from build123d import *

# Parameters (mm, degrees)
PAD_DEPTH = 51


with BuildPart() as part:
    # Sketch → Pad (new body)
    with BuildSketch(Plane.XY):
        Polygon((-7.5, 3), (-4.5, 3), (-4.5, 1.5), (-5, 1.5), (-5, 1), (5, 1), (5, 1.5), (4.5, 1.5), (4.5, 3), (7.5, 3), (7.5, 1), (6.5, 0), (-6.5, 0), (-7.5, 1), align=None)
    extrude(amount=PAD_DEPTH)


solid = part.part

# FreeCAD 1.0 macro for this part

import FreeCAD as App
import Part
import Sketcher


def add_polygon(sketch, points):
    """Adds a closed chain of lines whose ends are joined by coincident constraints."""
    first, n = sketch.GeometryCount, len(points)
    for a, b in zip(points, points[1:] + points[:1]):
        sketch.addGeometry(Part.LineSegment(App.Vector(*a, 0), App.Vector(*b, 0)), False)
    for i in range(n):
        sketch.addConstraint(Sketcher.Constraint("Coincident", first + i, 2, first + (i + 1) % n, 1))

doc = App.newDocument("Part")
body = doc.addObject("PartDesign::Body", "Body")

sketch1 = body.newObject("Sketcher::SketchObject", "Sketch")
sketch1.AttachmentSupport = (doc.getObject("XY_Plane"), [""])
sketch1.MapMode = "FlatFace"
add_polygon(sketch1, [(-4.5, 3), (-7.5, 3), (-7.5, 1), (-6.5, 0), (6.5, 0), (7.5, 1), (7.5, 3), (4.5, 3), (4.5, 1.5), (5, 1.5), (5, 1), (-5, 1), (-5, 1.5), (-4.5, 1.5)])
sketch1.addConstraint([
    Sketcher.Constraint("Horizontal", 0),
    Sketcher.Constraint("Vertical", 1),
    Sketcher.Constraint("Horizontal", 3),
    Sketcher.Constraint("Vertical", 5),
    Sketcher.Constraint("Horizontal", 6),
    Sketcher.Constraint("Vertical", 7),
    Sketcher.Constraint("Horizontal", 8),
    Sketcher.Constraint("Vertical", 9),
    Sketcher.Constraint("Horizontal", 10),
    Sketcher.Constraint("Vertical", 11),
    Sketcher.Constraint("Horizontal", 12),
    Sketcher.Constraint("Vertical", 13),
    Sketcher.Constraint("Symmetric", 2, 2, 3, 2, -1, 1),
    Sketcher.Constraint("Symmetric", 1, 2, 4, 2, -2),
    Sketcher.Constraint("Symmetric", 8, 2, 11, 2, -2),
    Sketcher.Constraint("Symmetric", 6, 2, 13, 2, -2),
    Sketcher.Constraint("Perpendicular", 2, 4),
    Sketcher.Constraint("Horizontal", 4, 2, 9, 2),
    Sketcher.Constraint("Equal", 12, 9),
    Sketcher.Constraint("DistanceX", 0, 2, 0, 1, 3.0),
    Sketcher.Constraint("DistanceX", 3, 1, 3, 2, 13.0),
    Sketcher.Constraint("DistanceX", 10, 2, 10, 1, 10.0),
    Sketcher.Constraint("DistanceY", 1, 2, 1, 1, 2.0),
    Sketcher.Constraint("DistanceX", 8, 1, 8, 2, 0.5),
])
pad1 = body.newObject("PartDesign::Pad", "Pad")
pad1.Profile = sketch1
pad1.Length = 51

doc.recompute()
